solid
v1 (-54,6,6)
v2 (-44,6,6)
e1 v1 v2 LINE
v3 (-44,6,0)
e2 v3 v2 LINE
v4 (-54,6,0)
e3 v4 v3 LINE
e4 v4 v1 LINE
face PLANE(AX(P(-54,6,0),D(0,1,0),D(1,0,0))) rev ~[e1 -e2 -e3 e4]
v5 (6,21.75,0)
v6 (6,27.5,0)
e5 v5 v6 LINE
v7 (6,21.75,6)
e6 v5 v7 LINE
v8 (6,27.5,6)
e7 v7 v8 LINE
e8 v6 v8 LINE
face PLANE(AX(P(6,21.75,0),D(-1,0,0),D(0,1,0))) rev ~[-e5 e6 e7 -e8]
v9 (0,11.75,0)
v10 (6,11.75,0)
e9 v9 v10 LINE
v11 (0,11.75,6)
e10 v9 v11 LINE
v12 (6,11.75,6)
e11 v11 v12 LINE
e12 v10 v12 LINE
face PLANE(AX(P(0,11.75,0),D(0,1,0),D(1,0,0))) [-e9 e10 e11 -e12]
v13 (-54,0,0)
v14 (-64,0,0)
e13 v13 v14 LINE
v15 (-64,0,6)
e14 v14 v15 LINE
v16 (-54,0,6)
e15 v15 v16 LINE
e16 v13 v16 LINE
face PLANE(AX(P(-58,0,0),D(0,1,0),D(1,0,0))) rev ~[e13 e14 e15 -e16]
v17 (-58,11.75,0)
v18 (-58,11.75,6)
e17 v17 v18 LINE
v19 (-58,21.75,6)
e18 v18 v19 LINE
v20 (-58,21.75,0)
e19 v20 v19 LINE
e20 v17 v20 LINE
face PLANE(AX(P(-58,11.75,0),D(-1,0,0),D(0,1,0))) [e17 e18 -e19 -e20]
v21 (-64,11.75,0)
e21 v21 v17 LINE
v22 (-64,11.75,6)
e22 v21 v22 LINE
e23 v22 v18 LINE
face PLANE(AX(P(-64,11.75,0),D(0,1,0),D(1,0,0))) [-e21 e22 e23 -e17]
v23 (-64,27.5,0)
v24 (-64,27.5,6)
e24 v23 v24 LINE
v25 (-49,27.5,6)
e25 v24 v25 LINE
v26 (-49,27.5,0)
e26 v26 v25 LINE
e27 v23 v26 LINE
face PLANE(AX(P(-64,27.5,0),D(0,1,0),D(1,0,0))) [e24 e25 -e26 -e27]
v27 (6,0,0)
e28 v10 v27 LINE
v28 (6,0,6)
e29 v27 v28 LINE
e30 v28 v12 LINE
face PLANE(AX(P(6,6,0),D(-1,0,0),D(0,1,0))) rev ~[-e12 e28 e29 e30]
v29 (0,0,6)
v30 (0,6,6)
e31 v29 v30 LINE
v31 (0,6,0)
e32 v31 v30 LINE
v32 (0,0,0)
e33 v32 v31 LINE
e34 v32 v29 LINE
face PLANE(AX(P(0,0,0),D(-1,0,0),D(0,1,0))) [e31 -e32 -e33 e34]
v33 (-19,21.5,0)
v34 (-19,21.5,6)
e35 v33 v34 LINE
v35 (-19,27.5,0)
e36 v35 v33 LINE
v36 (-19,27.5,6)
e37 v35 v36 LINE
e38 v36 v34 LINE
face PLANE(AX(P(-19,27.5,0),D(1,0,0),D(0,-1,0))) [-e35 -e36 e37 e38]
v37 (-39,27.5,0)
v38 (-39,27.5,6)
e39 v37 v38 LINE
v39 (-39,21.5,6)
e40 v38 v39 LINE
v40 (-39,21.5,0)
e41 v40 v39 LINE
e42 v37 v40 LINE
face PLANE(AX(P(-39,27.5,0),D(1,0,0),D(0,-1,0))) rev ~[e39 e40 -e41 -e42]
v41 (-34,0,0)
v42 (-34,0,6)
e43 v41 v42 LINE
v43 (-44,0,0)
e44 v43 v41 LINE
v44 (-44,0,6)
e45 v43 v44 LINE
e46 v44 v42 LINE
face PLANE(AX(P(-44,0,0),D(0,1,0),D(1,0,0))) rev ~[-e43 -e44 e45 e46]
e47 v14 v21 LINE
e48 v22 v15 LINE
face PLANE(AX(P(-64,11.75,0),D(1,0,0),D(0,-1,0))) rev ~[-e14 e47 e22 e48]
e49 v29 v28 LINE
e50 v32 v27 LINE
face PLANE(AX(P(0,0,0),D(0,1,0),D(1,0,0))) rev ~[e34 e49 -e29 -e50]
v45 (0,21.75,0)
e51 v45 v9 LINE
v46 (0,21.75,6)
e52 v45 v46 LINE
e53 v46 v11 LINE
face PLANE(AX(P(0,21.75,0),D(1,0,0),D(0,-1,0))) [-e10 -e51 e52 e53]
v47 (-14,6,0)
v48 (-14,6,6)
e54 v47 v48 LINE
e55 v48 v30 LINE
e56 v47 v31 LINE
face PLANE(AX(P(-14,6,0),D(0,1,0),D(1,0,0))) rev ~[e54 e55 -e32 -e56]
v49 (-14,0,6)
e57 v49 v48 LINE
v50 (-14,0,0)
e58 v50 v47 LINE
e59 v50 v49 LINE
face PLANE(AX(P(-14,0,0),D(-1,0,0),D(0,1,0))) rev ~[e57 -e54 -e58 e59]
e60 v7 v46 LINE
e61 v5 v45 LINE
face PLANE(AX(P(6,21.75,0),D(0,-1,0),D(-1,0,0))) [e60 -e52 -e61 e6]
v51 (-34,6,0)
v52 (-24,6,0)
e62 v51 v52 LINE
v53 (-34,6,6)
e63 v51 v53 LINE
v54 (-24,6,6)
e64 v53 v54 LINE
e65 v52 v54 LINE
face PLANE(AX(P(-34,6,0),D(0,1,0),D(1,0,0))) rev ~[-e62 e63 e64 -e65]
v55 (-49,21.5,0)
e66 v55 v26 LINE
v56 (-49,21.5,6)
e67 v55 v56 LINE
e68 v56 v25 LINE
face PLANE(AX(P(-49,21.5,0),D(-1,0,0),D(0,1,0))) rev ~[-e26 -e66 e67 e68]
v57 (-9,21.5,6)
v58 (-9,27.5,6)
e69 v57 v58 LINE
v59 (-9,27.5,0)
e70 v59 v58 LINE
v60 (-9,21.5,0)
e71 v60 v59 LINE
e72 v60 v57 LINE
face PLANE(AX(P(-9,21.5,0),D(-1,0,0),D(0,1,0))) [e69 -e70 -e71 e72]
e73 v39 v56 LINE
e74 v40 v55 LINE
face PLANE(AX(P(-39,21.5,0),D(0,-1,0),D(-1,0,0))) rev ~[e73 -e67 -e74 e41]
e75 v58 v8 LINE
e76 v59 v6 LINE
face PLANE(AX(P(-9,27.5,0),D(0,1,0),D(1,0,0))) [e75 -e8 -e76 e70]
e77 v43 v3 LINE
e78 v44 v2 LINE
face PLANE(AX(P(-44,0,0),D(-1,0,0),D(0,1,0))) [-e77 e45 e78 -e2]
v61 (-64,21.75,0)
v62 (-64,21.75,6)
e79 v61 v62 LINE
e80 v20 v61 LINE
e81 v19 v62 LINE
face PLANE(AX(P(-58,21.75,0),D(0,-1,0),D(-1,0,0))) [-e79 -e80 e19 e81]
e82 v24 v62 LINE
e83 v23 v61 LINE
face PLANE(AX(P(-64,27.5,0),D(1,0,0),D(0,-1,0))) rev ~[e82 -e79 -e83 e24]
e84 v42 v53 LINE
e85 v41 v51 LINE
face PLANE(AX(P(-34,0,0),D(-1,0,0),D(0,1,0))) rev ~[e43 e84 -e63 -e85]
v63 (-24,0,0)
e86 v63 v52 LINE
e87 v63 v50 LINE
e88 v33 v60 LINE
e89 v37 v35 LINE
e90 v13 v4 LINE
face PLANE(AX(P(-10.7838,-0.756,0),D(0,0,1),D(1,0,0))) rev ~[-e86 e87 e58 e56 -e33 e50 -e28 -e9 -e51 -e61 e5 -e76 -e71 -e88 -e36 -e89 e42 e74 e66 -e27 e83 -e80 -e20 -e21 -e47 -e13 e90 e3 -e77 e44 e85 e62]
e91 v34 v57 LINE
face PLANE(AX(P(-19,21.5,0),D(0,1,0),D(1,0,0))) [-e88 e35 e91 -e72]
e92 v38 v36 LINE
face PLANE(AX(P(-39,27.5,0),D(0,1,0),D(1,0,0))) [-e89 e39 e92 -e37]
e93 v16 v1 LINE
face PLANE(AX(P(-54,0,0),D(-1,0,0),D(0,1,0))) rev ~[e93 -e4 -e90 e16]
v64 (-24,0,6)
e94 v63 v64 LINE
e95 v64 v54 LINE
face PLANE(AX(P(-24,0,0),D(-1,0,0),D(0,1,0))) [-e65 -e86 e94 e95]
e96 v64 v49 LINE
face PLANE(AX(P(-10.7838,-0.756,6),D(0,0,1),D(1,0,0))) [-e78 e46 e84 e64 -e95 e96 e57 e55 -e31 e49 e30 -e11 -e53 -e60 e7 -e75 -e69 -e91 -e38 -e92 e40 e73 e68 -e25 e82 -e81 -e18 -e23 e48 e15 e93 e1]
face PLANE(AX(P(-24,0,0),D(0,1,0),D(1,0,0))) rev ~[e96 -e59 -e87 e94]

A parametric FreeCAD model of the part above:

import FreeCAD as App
import Part
import Sketcher
Q = App.Units.Quantity


def add_polygon(sketch, points):
    """Adds a closed chain of lines whose ends are joined by coincident constraints."""
    first, n = sketch.GeometryCount, len(points)
    for a, b in zip(points, points[1:] + points[:1]):
        sketch.addGeometry(Part.LineSegment(App.Vector(*a, 0), App.Vector(*b, 0)), False)
    for i in range(n):
        sketch.addConstraint(Sketcher.Constraint("Coincident", first + i, 2, first + (i + 1) % n, 1))

doc = App.newDocument("Part")
body = doc.addObject("PartDesign::Body", "Body")

# Sketch on XY plane
sketch1 = doc.addObject("Sketcher::SketchObject", "Sketch")
body.addObject(sketch1)
sketch1.AttachmentSupport = (doc.XY_Plane, [""])
sketch1.MapMode = "FlatFace"
add_polygon(sketch1, [(-44, 6), (-44, 0), (-34, 0), (-34, 6), (-24, 6), (-24, 0), (-14, 0), (-14, 6), (0, 6), (0, 0), (6, 0), (6, 11.75), (0, 11.75), (0, 21.75), (6, 21.75), (6, 27.5), (-9, 27.5), (-9, 21.5), (-19, 21.5), (-19, 27.5), (-39, 27.5), (-39, 21.5), (-49, 21.5), (-49, 27.5), (-64, 27.5), (-64, 21.75), (-58, 21.75), (-58, 11.75), (-64, 11.75), (-64, 0), (-54, 0), (-54, 6)])  # lines 0-31
sketch1.addConstraint([
    Sketcher.Constraint("Vertical", 0),
    Sketcher.Constraint("Horizontal", 1),
    Sketcher.Constraint("Vertical", 2),
    Sketcher.Constraint("Horizontal", 3),
    Sketcher.Constraint("Vertical", 4),
    Sketcher.Constraint("Horizontal", 5),
    Sketcher.Constraint("Vertical", 6),
    Sketcher.Constraint("Horizontal", 7),
    Sketcher.Constraint("Vertical", 8),
    Sketcher.Constraint("Horizontal", 9),
    Sketcher.Constraint("Vertical", 10),
    Sketcher.Constraint("Horizontal", 11),
    Sketcher.Constraint("Vertical", 12),
    Sketcher.Constraint("Horizontal", 13),
    Sketcher.Constraint("Vertical", 14),
    Sketcher.Constraint("Horizontal", 15),
    Sketcher.Constraint("Vertical", 16),
    Sketcher.Constraint("Horizontal", 17),
    Sketcher.Constraint("Vertical", 18),
    Sketcher.Constraint("Horizontal", 19),
    Sketcher.Constraint("Vertical", 20),
    Sketcher.Constraint("Horizontal", 21),
    Sketcher.Constraint("Vertical", 22),
    Sketcher.Constraint("Horizontal", 23),
    Sketcher.Constraint("Vertical", 24),
    Sketcher.Constraint("Horizontal", 25),
    Sketcher.Constraint("Vertical", 26),
    Sketcher.Constraint("Horizontal", 27),
    Sketcher.Constraint("Vertical", 28),
    Sketcher.Constraint("Horizontal", 29),
    Sketcher.Constraint("Vertical", 30),
    Sketcher.Constraint("Horizontal", 31),
    Sketcher.Constraint("Coincident", 8, 2, -1, 1),
    Sketcher.Constraint("PointOnObject", 0, 2, -1),
    Sketcher.Constraint("PointOnObject", 4, 2, -1),
    Sketcher.Constraint("PointOnObject", 11, 2, -2),
    Sketcher.Constraint("PointOnObject", 28, 2, -1),
    Sketcher.Constraint("Horizontal", 3, 2, 6, 2),
    Sketcher.Constraint("Horizontal", 15, 2, 18, 2),
    Sketcher.Constraint("Horizontal", 17, 2, 20, 2),
    Sketcher.Constraint("Horizontal", 19, 2, 22, 2),
    Sketcher.Constraint("Horizontal", 13, 2, 24, 2),
    Sketcher.Constraint("Horizontal", 11, 2, 26, 2),
    Sketcher.Constraint("Horizontal", 7, 2, 30, 2),
    Sketcher.Constraint("Vertical", 10, 2, 13, 2),
    Sketcher.Constraint("Vertical", 24, 2, 27, 2),
    Sketcher.Constraint("Equal", 1, 3),
    Sketcher.Constraint("Equal", 3, 5),
    Sketcher.Constraint("Equal", 5, 17),
    Sketcher.Constraint("Equal", 17, 21),
    Sketcher.Constraint("Equal", 15, 23),
    Sketcher.Constraint("Equal", 13, 25),
    Sketcher.Constraint("Equal", 21, 29),
    Sketcher.Constraint("Equal", 29, 31),
    Sketcher.Constraint("Equal", 27, 0),
    Sketcher.Constraint("Equal", 31, 12),
    Sketcher.Constraint("Equal", 8, 16),
    Sketcher.Constraint("DistanceX", 1, 1, 1, 2, Q("10 mm")),
    Sketcher.Constraint("DistanceX", 7, 1, 7, 2, Q("14 mm")),
    Sketcher.Constraint("DistanceX", 9, 1, 9, 2, Q("6 mm")),
    Sketcher.Constraint("DistanceX", 15, 2, 15, 1, Q("15 mm")),
    Sketcher.Constraint("DistanceY", 10, 1, 10, 2, Q("11.75 mm")),
    Sketcher.Constraint("DistanceY", 14, 1, 14, 2, Q("5.75 mm")),
])
pad1 = doc.addObject("PartDesign::Pad", "Pad")
body.addObject(pad1)
pad1.Profile = sketch1
pad1.Length = 6

doc.recompute()
